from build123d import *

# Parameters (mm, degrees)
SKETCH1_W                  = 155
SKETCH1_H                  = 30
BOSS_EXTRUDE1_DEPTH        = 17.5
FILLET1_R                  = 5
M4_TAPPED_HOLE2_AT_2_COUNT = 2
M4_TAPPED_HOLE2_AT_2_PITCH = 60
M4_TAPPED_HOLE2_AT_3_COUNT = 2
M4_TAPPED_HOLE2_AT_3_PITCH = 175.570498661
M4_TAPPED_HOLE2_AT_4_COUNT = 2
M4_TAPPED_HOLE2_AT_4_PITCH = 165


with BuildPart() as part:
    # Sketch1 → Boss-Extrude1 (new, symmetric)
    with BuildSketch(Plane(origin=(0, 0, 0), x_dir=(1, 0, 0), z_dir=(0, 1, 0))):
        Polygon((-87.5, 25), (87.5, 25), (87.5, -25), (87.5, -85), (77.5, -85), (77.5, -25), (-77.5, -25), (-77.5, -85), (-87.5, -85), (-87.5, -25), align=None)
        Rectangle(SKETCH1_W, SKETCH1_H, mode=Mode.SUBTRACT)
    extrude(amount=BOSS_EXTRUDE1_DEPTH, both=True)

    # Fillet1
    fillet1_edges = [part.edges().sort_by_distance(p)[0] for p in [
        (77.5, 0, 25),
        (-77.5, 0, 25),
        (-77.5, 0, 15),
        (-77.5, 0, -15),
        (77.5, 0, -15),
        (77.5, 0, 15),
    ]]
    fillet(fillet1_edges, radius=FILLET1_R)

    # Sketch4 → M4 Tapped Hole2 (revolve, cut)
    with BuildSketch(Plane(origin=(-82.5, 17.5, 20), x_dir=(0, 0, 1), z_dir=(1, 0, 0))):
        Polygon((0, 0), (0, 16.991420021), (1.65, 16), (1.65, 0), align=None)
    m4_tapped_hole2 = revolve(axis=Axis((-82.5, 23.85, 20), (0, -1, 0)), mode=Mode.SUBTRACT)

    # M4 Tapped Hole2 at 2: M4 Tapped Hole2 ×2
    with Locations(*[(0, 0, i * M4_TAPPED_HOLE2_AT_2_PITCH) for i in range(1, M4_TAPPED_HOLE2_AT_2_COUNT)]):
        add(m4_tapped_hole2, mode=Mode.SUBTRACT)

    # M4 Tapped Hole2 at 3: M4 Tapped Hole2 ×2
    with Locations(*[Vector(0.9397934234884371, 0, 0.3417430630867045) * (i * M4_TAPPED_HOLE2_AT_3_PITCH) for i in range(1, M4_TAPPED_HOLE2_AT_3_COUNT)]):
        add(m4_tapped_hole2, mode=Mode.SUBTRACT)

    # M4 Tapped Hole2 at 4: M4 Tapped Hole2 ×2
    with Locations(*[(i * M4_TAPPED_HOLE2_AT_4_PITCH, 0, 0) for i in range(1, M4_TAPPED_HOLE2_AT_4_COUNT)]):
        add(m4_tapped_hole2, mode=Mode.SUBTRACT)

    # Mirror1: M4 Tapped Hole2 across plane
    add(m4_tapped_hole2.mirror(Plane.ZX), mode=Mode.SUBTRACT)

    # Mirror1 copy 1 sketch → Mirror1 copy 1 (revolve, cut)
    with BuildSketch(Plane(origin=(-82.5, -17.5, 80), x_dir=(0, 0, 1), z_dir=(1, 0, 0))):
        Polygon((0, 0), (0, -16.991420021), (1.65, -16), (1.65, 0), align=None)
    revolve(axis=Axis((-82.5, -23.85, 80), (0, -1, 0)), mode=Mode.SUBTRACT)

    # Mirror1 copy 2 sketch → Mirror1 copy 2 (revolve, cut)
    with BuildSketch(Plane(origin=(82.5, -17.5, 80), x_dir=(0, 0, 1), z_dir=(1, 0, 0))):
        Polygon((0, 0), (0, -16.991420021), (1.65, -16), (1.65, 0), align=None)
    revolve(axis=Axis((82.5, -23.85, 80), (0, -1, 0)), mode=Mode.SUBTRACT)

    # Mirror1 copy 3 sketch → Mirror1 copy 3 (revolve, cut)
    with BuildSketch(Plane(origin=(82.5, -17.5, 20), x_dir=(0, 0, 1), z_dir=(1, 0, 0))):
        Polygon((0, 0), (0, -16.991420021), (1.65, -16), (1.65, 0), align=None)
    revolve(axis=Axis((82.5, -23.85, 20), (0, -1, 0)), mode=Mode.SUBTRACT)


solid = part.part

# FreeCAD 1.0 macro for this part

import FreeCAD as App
import Part
import Sketcher
from FreeCAD import Vector
Q = App.Units.Quantity


def edges_at(feature, points):
    """Names of the edges that pass closest to the given points."""
    edges = feature.Shape.Edges
    near = lambda p: min(range(len(edges)), key=lambda i: edges[i].distToShape(Part.Vertex(*p))[0])
    return sorted({f"Edge{near(p) + 1}" for p in points})


def add_polygon(sketch, points):
    """Adds a closed chain of lines whose ends are joined by coincident constraints."""
    first, n = sketch.GeometryCount, len(points)
    for a, b in zip(points, points[1:] + points[:1]):
        sketch.addGeometry(Part.LineSegment(App.Vector(*a, 0), App.Vector(*b, 0)), False)
    for i in range(n):
        sketch.addConstraint(Sketcher.Constraint("Coincident", first + i, 2, first + (i + 1) % n, 1))

doc = App.newDocument("Part")
params = doc.addObject("Spreadsheet::Sheet", "Params")
for row, (alias, value) in enumerate([
    ("sketch1_width", "175 mm"),
    ("sketch1_width2", "10 mm"),
    ("sketch1_height", "110 mm"),
    ("sketch1_height2", "60 mm"),
    ("sketch1_height3", "30 mm"),
    ("pad1_length", "35 mm"),
    ("fillet_radius", "5 mm"),
    ("sketch2_width", "16 mm"),
    ("sketch2_height", "1.65 mm"),
    ("groove_angle", "360 deg"),
    ("linearpattern_pitch", "60 mm"),
    ("linearpattern2_pitch", "175.570499 mm"),
    ("linearpattern3_pitch", "165 mm"),
    ("sketch3_width", "16 mm"),
    ("sketch3_height", "1.65 mm"),
    ("groove2_angle", "360 deg"),
    ("sketch4_width", "16 mm"),
    ("sketch4_height", "1.65 mm"),
    ("groove3_angle", "360 deg"),
    ("sketch5_width", "16 mm"),
    ("sketch5_height", "1.65 mm"),
    ("groove4_angle", "360 deg"),
], start=1):
    params.set(f"A{row}", alias)
    params.set(f"B{row}", "=" + value)
    params.setAlias(f"B{row}", alias)

body = doc.addObject("PartDesign::Body", "Body")

sketch1 = doc.addObject("Sketcher::SketchObject", "Sketch")
body.addObject(sketch1)
sketch1.AttachmentSupport = (doc.XZ_Plane, [""])
sketch1.MapMode = "FlatFace"
add_polygon(sketch1, [(88, -25), (-88, -25), (-88, 85), (-78, 85), (-78, 25), (78, 25), (78, 85), (88, 85)])
add_polygon(sketch1, [(-78, 15), (-78, -15), (78, -15), (78, 15)])
sketch1.addConstraint([
    Sketcher.Constraint("Horizontal", 0),
    Sketcher.Constraint("Vertical", 1),
    Sketcher.Constraint("Horizontal", 2),
    Sketcher.Constraint("Vertical", 3),
    Sketcher.Constraint("Horizontal", 4),
    Sketcher.Constraint("Vertical", 5),
    Sketcher.Constraint("Horizontal", 6),
    Sketcher.Constraint("Vertical", 7),
    Sketcher.Constraint("Vertical", 8),
    Sketcher.Constraint("Horizontal", 9),
    Sketcher.Constraint("Vertical", 10),
    Sketcher.Constraint("Horizontal", 11),
    Sketcher.Constraint("Symmetric", 8, 2, 10, 2, -1, 1),
    Sketcher.Constraint("Symmetric", 2, 2, 5, 2, -2),
    Sketcher.Constraint("Vertical", 3, 2, 8, 2),
    Sketcher.Constraint("Equal", 2, 6),
    Sketcher.Constraint("DistanceX", 0, 2, 0, 1, Q("175 mm")),
    Sketcher.Constraint("DistanceX", 2, 1, 2, 2, Q("10 mm")),
    Sketcher.Constraint("DistanceY", 1, 1, 1, 2, Q("110 mm")),
    Sketcher.Constraint("DistanceY", 3, 2, 3, 1, Q("60 mm")),
    Sketcher.Constraint("DistanceY", 8, 2, 8, 1, Q("30 mm")),
    Sketcher.Constraint("DistanceY", 0, 2, -1, 1, Q("25 mm")),
])
sketch1.setExpression("Constraints[28]", "Params.sketch1_width")
sketch1.setExpression("Constraints[29]", "Params.sketch1_width2")
sketch1.setExpression("Constraints[30]", "Params.sketch1_height")
sketch1.setExpression("Constraints[31]", "Params.sketch1_height2")
sketch1.setExpression("Constraints[32]", "Params.sketch1_height3")
pad1 = doc.addObject("PartDesign::Pad", "Pad")
body.addObject(pad1)
pad1.Profile = sketch1
pad1.setExpression("Length", "Params.pad1_length")
pad1.Midplane = True
doc.recompute()

fillet = doc.addObject("PartDesign::Fillet", "Fillet")
body.addObject(fillet)
fillet.Base = (pad1, edges_at(pad1, [
    (77.5, 0, 25),
    (-77.5, 0, 25),
    (-77.5, 0, 15),
    (-77.5, 0, -15),
    (77.5, 0, -15),
    (77.5, 0, 15),
]))
fillet.setExpression("Radius", "Params.fillet_radius")

sketch2 = doc.addObject("Sketcher::SketchObject", "Sketch001")
body.addObject(sketch2)
sketch2.AttachmentSupport = (doc.YZ_Plane, [""])
sketch2.MapMode = "FlatFace"
sketch2.AttachmentOffset = App.Placement(Vector(0, 0, -82.5), App.Rotation())
add_polygon(sketch2, [(0.5, 20), (17.5, 20), (17.5, 21.6), (1.5, 21.6)])
sketch2.addGeometry(Part.LineSegment(Vector(17.5, 20, 0), Vector(0.5, 20, 0)), True)
sketch2.addConstraint([
    Sketcher.Constraint("Horizontal", 0),
    Sketcher.Constraint("Vertical", 1),
    Sketcher.Constraint("Horizontal", 2),
    Sketcher.Constraint("Horizontal", 4),
    Sketcher.Constraint("Coincident", 4, 1, 0, 2),
    Sketcher.Constraint("Equal", 0, 4),
    Sketcher.Constraint("DistanceX", 2, 2, 2, 1, Q("16 mm")),
    Sketcher.Constraint("Angle", 3, Q("-121 deg")),
    Sketcher.Constraint("DistanceY", -1, 1, 0, 2, Q("20 mm")),
    Sketcher.Constraint("DistanceY", 1, 1, 1, 2, Q("1.65 mm")),
    Sketcher.Constraint("DistanceX", -1, 1, 0, 2, Q("17.5 mm")),
])
sketch2.setExpression("Constraints[10]", "Params.sketch2_width")
sketch2.setExpression("Constraints[13]", "Params.sketch2_height")
groove = doc.addObject("PartDesign::Groove", "Groove")
body.addObject(groove)
groove.Profile = sketch2
groove.ReferenceAxis = (sketch2, ["Axis0"])
groove.setExpression("Angle", "Params.groove_angle")
doc.recompute()

linearpattern = doc.addObject("PartDesign::LinearPattern", "LinearPattern")
body.addObject(linearpattern)
linearpattern.Originals = [groove]
linearpattern.Direction = (doc.Z_Axis, [""])
linearpattern.Mode = "offset"
linearpattern.setExpression("Offset", "Params.linearpattern_pitch")
linearpattern.Occurrences = 2
body.Tip = linearpattern
doc.recompute()

datumline = doc.addObject("PartDesign::Line", "DatumLine")
body.addObject(datumline)
datumline.Placement = App.Placement(Vector(0, 0, 0), App.Rotation(Vector(0, 0, 1), Vector(0.939793423, 0, 0.341743063)))
linearpattern2 = doc.addObject("PartDesign::LinearPattern", "LinearPattern001")
body.addObject(linearpattern2)
linearpattern2.Originals = [groove]
linearpattern2.Direction = (datumline, [""])
linearpattern2.Mode = "offset"
linearpattern2.setExpression("Offset", "Params.linearpattern2_pitch")
linearpattern2.Occurrences = 2
body.Tip = linearpattern2
doc.recompute()

linearpattern3 = doc.addObject("PartDesign::LinearPattern", "LinearPattern002")
body.addObject(linearpattern3)
linearpattern3.Originals = [groove]
linearpattern3.Direction = (doc.X_Axis, [""])
linearpattern3.Mode = "offset"
linearpattern3.setExpression("Offset", "Params.linearpattern3_pitch")
linearpattern3.Occurrences = 2
body.Tip = linearpattern3
doc.recompute()

mirrored = doc.addObject("PartDesign::Mirrored", "Mirrored")
body.addObject(mirrored)
mirrored.Originals = [groove]
mirrored.MirrorPlane = (doc.XZ_Plane, [""])
body.Tip = mirrored

sketch3 = doc.addObject("Sketcher::SketchObject", "Sketch002")
body.addObject(sketch3)
sketch3.AttachmentSupport = (doc.YZ_Plane, [""])
sketch3.MapMode = "FlatFace"
sketch3.AttachmentOffset = App.Placement(Vector(0, 0, -82.5), App.Rotation())
add_polygon(sketch3, [(-17.5, 80), (-0.5, 80), (-1.5, 81.7), (-17.5, 81.7)])
sketch3.addGeometry(Part.LineSegment(Vector(-0.5, 80, 0), Vector(-17.5, 80, 0)), True)
sketch3.addConstraint([
    Sketcher.Constraint("Horizontal", 0),
    Sketcher.Constraint("Horizontal", 2),
    Sketcher.Constraint("Vertical", 3),
    Sketcher.Constraint("Horizontal", 4),
    Sketcher.Constraint("Coincident", 4, 1, 0, 2),
    Sketcher.Constraint("Vertical", 2, 2, 4, 2),
    Sketcher.Constraint("DistanceX", 2, 2, 2, 1, Q("16 mm")),
    Sketcher.Constraint("Angle", 1, Q("121 deg")),
    Sketcher.Constraint("DistanceY", -1, 1, 0, 2, Q("80 mm")),
    Sketcher.Constraint("DistanceY", 3, 2, 3, 1, Q("1.65 mm")),
    Sketcher.Constraint("DistanceX", 1, 2, -1, 1, Q("1.5 mm")),
])
sketch3.setExpression("Constraints[10]", "Params.sketch3_width")
sketch3.setExpression("Constraints[13]", "Params.sketch3_height")
groove2 = doc.addObject("PartDesign::Groove", "Groove001")
body.addObject(groove2)
groove2.Profile = sketch3
groove2.ReferenceAxis = (sketch3, ["Axis0"])
groove2.setExpression("Angle", "Params.groove2_angle")

sketch4 = doc.addObject("Sketcher::SketchObject", "Sketch003")
body.addObject(sketch4)
sketch4.AttachmentSupport = (doc.YZ_Plane, [""])
sketch4.MapMode = "FlatFace"
sketch4.AttachmentOffset = App.Placement(Vector(0, 0, 82.5), App.Rotation())
add_polygon(sketch4, [(-17.5, 80), (-0.5, 80), (-1.5, 81.7), (-17.5, 81.7)])
sketch4.addGeometry(Part.LineSegment(Vector(-0.5, 80, 0), Vector(-17.5, 80, 0)), True)
sketch4.addConstraint([
    Sketcher.Constraint("Horizontal", 0),
    Sketcher.Constraint("Horizontal", 2),
    Sketcher.Constraint("Vertical", 3),
    Sketcher.Constraint("Horizontal", 4),
    Sketcher.Constraint("Coincident", 4, 1, 0, 2),
    Sketcher.Constraint("Vertical", 2, 2, 4, 2),
    Sketcher.Constraint("DistanceX", 2, 2, 2, 1, Q("16 mm")),
    Sketcher.Constraint("Angle", 1, Q("121 deg")),
    Sketcher.Constraint("DistanceY", -1, 1, 0, 2, Q("80 mm")),
    Sketcher.Constraint("DistanceY", 3, 2, 3, 1, Q("1.65 mm")),
    Sketcher.Constraint("DistanceX", 1, 2, -1, 1, Q("1.5 mm")),
])
sketch4.setExpression("Constraints[10]", "Params.sketch4_width")
sketch4.setExpression("Constraints[13]", "Params.sketch4_height")
groove3 = doc.addObject("PartDesign::Groove", "Groove002")
body.addObject(groove3)
groove3.Profile = sketch4
groove3.ReferenceAxis = (sketch4, ["Axis0"])
groove3.setExpression("Angle", "Params.groove3_angle")

sketch5 = doc.addObject("Sketcher::SketchObject", "Sketch004")
body.addObject(sketch5)
sketch5.AttachmentSupport = (doc.YZ_Plane, [""])
sketch5.MapMode = "FlatFace"
sketch5.AttachmentOffset = App.Placement(Vector(0, 0, 82.5), App.Rotation())
add_polygon(sketch5, [(-17.5, 20), (-0.5, 20), (-1.5, 21.6), (-17.5, 21.6)])
sketch5.addGeometry(Part.LineSegment(Vector(-0.5, 20, 0), Vector(-17.5, 20, 0)), True)
sketch5.addConstraint([
    Sketcher.Constraint("Horizontal", 0),
    Sketcher.Constraint("Horizontal", 2),
    Sketcher.Constraint("Vertical", 3),
    Sketcher.Constraint("Horizontal", 4),
    Sketcher.Constraint("Coincident", 4, 1, 0, 2),
    Sketcher.Constraint("Vertical", 2, 2, 4, 2),
    Sketcher.Constraint("DistanceX", 2, 2, 2, 1, Q("16 mm")),
    Sketcher.Constraint("Angle", 1, Q("121 deg")),
    Sketcher.Constraint("DistanceY", -1, 1, 0, 2, Q("20 mm")),
    Sketcher.Constraint("DistanceY", 3, 2, 3, 1, Q("1.65 mm")),
    Sketcher.Constraint("DistanceX", 1, 2, -1, 1, Q("1.5 mm")),
])
sketch5.setExpression("Constraints[10]", "Params.sketch5_width")
sketch5.setExpression("Constraints[13]", "Params.sketch5_height")
groove4 = doc.addObject("PartDesign::Groove", "Groove003")
body.addObject(groove4)
groove4.Profile = sketch5
groove4.ReferenceAxis = (sketch5, ["Axis0"])
groove4.setExpression("Angle", "Params.groove4_angle")

doc.recompute()
